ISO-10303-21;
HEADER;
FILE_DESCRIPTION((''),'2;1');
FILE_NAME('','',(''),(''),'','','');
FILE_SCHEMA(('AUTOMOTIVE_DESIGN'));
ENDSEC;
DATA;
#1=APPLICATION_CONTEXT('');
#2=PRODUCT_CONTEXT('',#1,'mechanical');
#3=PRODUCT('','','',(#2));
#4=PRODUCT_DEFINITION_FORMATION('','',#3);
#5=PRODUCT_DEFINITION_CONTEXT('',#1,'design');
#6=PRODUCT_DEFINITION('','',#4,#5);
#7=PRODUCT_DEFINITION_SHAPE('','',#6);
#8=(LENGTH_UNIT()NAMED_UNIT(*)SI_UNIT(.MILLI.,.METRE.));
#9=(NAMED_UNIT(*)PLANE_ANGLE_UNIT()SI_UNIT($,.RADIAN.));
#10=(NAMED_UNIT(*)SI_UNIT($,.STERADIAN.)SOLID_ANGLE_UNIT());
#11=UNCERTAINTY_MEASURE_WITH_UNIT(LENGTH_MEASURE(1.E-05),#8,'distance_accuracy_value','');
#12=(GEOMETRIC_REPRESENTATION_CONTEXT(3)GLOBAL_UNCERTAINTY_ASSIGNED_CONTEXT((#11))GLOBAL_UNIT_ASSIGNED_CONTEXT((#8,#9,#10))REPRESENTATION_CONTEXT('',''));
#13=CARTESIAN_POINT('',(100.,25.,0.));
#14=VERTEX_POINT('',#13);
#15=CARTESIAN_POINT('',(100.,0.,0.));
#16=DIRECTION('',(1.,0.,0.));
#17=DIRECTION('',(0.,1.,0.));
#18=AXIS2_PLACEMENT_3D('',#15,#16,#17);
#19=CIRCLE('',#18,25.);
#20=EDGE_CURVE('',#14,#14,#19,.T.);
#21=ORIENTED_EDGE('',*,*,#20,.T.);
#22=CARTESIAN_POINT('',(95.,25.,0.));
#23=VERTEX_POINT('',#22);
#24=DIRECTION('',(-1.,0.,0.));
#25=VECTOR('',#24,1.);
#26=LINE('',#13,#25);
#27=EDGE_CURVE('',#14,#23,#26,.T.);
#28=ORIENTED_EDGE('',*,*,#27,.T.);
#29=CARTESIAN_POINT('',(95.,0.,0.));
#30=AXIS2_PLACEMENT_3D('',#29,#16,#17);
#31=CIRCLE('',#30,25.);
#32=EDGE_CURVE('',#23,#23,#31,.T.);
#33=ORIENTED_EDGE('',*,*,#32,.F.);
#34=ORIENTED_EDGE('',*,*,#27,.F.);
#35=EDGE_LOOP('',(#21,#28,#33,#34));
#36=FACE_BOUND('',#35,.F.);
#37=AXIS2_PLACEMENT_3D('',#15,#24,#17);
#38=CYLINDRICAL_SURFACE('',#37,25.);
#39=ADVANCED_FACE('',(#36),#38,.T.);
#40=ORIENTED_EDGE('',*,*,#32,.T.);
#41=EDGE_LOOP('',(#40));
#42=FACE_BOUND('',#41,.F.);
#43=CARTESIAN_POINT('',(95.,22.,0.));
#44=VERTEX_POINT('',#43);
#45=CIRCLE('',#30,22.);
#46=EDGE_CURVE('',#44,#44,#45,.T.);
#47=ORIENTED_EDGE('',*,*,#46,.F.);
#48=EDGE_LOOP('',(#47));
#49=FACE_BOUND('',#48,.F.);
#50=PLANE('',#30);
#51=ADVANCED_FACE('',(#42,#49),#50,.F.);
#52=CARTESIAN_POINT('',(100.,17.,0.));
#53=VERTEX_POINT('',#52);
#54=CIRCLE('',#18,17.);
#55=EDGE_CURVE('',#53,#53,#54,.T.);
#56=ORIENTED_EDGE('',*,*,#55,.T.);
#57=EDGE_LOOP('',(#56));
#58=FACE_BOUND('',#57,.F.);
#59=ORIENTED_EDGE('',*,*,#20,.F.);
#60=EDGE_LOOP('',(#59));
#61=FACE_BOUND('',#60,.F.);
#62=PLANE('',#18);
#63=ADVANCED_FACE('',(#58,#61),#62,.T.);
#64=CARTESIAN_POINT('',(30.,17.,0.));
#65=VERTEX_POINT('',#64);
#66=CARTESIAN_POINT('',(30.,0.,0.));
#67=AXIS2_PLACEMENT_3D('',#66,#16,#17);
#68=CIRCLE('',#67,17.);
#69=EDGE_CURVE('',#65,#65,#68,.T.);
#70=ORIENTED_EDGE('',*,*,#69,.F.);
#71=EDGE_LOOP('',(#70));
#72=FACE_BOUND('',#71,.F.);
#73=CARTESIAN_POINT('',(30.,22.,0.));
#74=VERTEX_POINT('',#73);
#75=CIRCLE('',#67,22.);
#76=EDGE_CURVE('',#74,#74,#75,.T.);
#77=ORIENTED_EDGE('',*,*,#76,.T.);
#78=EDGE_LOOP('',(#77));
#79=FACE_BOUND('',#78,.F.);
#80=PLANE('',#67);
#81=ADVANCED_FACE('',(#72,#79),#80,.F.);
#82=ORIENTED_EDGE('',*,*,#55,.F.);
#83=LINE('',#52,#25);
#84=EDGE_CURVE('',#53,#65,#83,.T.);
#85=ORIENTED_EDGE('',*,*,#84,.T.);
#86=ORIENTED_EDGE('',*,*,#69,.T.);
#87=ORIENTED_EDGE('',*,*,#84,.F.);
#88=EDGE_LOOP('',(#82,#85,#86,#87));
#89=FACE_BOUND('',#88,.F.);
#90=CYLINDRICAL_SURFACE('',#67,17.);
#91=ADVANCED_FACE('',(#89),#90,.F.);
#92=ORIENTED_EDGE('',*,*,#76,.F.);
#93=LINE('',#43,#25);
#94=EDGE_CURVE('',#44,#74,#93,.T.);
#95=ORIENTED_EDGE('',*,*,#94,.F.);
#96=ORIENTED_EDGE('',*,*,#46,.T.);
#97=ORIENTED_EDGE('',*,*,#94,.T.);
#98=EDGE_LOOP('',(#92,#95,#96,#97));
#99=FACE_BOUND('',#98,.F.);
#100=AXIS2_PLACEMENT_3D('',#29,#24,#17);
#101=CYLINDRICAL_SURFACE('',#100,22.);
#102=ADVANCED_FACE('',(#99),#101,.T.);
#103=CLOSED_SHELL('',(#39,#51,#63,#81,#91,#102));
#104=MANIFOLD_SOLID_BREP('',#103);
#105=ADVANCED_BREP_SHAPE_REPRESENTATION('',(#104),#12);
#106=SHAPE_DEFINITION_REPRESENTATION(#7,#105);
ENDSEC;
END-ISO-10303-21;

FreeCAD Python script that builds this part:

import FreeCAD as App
import Part
import Sketcher

V = App.Vector

doc = App.newDocument("Part")
params = doc.addObject("Spreadsheet::Sheet", "Params")
for row, (alias, value) in enumerate([
    ("sketch1_width", "70 mm"),
    ("sketch1_width2", "5 mm"),
    ("sketch1_height", "8 mm"),
    ("revolution_angle", "360 deg"),
], start=1):
    params.set(f"A{row}", alias)
    params.set(f"B{row}", "=" + value)
    params.setAlias(f"B{row}", alias)

body = doc.addObject("PartDesign::Body", "Body")

# Sketch on XY plane
sketch1 = body.newObject("Sketcher::SketchObject", "Sketch")
sketch1.AttachmentSupport = (doc.getObject("XY_Plane"), [""])
sketch1.MapMode = "FlatFace"
sketch1.addGeometry(Part.LineSegment(V(30, 17, 0), V(100, 17, 0)), False)
sketch1.addGeometry(Part.LineSegment(V(100, 17, 0), V(100, 25, 0)), False)
sketch1.addGeometry(Part.LineSegment(V(100, 25, 0), V(95, 25, 0)), False)
sketch1.addGeometry(Part.LineSegment(V(95, 25, 0), V(95, 22, 0)), False)
sketch1.addGeometry(Part.LineSegment(V(95, 22, 0), V(30, 22, 0)), False)
sketch1.addGeometry(Part.LineSegment(V(30, 22, 0), V(30, 17, 0)), False)
sketch1.addConstraint(Sketcher.Constraint("Coincident", 0, 2, 1, 1))
sketch1.addConstraint(Sketcher.Constraint("Coincident", 1, 2, 2, 1))
sketch1.addConstraint(Sketcher.Constraint("Coincident", 2, 2, 3, 1))
sketch1.addConstraint(Sketcher.Constraint("Coincident", 3, 2, 4, 1))
sketch1.addConstraint(Sketcher.Constraint("Coincident", 4, 2, 5, 1))
sketch1.addConstraint(Sketcher.Constraint("Coincident", 5, 2, 0, 1))
sketch1.addConstraint(Sketcher.Constraint("Horizontal", 0))
sketch1.addConstraint(Sketcher.Constraint("Vertical", 1))
sketch1.addConstraint(Sketcher.Constraint("Horizontal", 2))
sketch1.addConstraint(Sketcher.Constraint("Vertical", 3))
sketch1.addConstraint(Sketcher.Constraint("Horizontal", 4))
sketch1.addConstraint(Sketcher.Constraint("Vertical", 5))
sketch1.addConstraint(Sketcher.Constraint("Equal", 2, 5))
sketch1.addConstraint(Sketcher.Constraint("DistanceX", 0, 1, 0, 2, 70.0))
sketch1.addConstraint(Sketcher.Constraint("DistanceX", 2, 2, 2, 1, 5.0))
sketch1.addConstraint(Sketcher.Constraint("DistanceY", 1, 1, 1, 2, 8.0))
sketch1.addConstraint(Sketcher.Constraint("DistanceX", -1, 1, 0, 2, 100.0))
sketch1.addConstraint(Sketcher.Constraint("DistanceY", -1, 1, 1, 2, 25.0))
sketch1.setExpression("Constraints[13]", "Params.sketch1_width")
sketch1.setExpression("Constraints[14]", "Params.sketch1_width2")
sketch1.setExpression("Constraints[15]", "Params.sketch1_height")
revolution = body.newObject("PartDesign::Revolution", "Revolution")
revolution.Profile = sketch1
revolution.ReferenceAxis = (sketch1, ["H_Axis"])
revolution.setExpression("Angle", "Params.revolution_angle")

doc.recompute()
